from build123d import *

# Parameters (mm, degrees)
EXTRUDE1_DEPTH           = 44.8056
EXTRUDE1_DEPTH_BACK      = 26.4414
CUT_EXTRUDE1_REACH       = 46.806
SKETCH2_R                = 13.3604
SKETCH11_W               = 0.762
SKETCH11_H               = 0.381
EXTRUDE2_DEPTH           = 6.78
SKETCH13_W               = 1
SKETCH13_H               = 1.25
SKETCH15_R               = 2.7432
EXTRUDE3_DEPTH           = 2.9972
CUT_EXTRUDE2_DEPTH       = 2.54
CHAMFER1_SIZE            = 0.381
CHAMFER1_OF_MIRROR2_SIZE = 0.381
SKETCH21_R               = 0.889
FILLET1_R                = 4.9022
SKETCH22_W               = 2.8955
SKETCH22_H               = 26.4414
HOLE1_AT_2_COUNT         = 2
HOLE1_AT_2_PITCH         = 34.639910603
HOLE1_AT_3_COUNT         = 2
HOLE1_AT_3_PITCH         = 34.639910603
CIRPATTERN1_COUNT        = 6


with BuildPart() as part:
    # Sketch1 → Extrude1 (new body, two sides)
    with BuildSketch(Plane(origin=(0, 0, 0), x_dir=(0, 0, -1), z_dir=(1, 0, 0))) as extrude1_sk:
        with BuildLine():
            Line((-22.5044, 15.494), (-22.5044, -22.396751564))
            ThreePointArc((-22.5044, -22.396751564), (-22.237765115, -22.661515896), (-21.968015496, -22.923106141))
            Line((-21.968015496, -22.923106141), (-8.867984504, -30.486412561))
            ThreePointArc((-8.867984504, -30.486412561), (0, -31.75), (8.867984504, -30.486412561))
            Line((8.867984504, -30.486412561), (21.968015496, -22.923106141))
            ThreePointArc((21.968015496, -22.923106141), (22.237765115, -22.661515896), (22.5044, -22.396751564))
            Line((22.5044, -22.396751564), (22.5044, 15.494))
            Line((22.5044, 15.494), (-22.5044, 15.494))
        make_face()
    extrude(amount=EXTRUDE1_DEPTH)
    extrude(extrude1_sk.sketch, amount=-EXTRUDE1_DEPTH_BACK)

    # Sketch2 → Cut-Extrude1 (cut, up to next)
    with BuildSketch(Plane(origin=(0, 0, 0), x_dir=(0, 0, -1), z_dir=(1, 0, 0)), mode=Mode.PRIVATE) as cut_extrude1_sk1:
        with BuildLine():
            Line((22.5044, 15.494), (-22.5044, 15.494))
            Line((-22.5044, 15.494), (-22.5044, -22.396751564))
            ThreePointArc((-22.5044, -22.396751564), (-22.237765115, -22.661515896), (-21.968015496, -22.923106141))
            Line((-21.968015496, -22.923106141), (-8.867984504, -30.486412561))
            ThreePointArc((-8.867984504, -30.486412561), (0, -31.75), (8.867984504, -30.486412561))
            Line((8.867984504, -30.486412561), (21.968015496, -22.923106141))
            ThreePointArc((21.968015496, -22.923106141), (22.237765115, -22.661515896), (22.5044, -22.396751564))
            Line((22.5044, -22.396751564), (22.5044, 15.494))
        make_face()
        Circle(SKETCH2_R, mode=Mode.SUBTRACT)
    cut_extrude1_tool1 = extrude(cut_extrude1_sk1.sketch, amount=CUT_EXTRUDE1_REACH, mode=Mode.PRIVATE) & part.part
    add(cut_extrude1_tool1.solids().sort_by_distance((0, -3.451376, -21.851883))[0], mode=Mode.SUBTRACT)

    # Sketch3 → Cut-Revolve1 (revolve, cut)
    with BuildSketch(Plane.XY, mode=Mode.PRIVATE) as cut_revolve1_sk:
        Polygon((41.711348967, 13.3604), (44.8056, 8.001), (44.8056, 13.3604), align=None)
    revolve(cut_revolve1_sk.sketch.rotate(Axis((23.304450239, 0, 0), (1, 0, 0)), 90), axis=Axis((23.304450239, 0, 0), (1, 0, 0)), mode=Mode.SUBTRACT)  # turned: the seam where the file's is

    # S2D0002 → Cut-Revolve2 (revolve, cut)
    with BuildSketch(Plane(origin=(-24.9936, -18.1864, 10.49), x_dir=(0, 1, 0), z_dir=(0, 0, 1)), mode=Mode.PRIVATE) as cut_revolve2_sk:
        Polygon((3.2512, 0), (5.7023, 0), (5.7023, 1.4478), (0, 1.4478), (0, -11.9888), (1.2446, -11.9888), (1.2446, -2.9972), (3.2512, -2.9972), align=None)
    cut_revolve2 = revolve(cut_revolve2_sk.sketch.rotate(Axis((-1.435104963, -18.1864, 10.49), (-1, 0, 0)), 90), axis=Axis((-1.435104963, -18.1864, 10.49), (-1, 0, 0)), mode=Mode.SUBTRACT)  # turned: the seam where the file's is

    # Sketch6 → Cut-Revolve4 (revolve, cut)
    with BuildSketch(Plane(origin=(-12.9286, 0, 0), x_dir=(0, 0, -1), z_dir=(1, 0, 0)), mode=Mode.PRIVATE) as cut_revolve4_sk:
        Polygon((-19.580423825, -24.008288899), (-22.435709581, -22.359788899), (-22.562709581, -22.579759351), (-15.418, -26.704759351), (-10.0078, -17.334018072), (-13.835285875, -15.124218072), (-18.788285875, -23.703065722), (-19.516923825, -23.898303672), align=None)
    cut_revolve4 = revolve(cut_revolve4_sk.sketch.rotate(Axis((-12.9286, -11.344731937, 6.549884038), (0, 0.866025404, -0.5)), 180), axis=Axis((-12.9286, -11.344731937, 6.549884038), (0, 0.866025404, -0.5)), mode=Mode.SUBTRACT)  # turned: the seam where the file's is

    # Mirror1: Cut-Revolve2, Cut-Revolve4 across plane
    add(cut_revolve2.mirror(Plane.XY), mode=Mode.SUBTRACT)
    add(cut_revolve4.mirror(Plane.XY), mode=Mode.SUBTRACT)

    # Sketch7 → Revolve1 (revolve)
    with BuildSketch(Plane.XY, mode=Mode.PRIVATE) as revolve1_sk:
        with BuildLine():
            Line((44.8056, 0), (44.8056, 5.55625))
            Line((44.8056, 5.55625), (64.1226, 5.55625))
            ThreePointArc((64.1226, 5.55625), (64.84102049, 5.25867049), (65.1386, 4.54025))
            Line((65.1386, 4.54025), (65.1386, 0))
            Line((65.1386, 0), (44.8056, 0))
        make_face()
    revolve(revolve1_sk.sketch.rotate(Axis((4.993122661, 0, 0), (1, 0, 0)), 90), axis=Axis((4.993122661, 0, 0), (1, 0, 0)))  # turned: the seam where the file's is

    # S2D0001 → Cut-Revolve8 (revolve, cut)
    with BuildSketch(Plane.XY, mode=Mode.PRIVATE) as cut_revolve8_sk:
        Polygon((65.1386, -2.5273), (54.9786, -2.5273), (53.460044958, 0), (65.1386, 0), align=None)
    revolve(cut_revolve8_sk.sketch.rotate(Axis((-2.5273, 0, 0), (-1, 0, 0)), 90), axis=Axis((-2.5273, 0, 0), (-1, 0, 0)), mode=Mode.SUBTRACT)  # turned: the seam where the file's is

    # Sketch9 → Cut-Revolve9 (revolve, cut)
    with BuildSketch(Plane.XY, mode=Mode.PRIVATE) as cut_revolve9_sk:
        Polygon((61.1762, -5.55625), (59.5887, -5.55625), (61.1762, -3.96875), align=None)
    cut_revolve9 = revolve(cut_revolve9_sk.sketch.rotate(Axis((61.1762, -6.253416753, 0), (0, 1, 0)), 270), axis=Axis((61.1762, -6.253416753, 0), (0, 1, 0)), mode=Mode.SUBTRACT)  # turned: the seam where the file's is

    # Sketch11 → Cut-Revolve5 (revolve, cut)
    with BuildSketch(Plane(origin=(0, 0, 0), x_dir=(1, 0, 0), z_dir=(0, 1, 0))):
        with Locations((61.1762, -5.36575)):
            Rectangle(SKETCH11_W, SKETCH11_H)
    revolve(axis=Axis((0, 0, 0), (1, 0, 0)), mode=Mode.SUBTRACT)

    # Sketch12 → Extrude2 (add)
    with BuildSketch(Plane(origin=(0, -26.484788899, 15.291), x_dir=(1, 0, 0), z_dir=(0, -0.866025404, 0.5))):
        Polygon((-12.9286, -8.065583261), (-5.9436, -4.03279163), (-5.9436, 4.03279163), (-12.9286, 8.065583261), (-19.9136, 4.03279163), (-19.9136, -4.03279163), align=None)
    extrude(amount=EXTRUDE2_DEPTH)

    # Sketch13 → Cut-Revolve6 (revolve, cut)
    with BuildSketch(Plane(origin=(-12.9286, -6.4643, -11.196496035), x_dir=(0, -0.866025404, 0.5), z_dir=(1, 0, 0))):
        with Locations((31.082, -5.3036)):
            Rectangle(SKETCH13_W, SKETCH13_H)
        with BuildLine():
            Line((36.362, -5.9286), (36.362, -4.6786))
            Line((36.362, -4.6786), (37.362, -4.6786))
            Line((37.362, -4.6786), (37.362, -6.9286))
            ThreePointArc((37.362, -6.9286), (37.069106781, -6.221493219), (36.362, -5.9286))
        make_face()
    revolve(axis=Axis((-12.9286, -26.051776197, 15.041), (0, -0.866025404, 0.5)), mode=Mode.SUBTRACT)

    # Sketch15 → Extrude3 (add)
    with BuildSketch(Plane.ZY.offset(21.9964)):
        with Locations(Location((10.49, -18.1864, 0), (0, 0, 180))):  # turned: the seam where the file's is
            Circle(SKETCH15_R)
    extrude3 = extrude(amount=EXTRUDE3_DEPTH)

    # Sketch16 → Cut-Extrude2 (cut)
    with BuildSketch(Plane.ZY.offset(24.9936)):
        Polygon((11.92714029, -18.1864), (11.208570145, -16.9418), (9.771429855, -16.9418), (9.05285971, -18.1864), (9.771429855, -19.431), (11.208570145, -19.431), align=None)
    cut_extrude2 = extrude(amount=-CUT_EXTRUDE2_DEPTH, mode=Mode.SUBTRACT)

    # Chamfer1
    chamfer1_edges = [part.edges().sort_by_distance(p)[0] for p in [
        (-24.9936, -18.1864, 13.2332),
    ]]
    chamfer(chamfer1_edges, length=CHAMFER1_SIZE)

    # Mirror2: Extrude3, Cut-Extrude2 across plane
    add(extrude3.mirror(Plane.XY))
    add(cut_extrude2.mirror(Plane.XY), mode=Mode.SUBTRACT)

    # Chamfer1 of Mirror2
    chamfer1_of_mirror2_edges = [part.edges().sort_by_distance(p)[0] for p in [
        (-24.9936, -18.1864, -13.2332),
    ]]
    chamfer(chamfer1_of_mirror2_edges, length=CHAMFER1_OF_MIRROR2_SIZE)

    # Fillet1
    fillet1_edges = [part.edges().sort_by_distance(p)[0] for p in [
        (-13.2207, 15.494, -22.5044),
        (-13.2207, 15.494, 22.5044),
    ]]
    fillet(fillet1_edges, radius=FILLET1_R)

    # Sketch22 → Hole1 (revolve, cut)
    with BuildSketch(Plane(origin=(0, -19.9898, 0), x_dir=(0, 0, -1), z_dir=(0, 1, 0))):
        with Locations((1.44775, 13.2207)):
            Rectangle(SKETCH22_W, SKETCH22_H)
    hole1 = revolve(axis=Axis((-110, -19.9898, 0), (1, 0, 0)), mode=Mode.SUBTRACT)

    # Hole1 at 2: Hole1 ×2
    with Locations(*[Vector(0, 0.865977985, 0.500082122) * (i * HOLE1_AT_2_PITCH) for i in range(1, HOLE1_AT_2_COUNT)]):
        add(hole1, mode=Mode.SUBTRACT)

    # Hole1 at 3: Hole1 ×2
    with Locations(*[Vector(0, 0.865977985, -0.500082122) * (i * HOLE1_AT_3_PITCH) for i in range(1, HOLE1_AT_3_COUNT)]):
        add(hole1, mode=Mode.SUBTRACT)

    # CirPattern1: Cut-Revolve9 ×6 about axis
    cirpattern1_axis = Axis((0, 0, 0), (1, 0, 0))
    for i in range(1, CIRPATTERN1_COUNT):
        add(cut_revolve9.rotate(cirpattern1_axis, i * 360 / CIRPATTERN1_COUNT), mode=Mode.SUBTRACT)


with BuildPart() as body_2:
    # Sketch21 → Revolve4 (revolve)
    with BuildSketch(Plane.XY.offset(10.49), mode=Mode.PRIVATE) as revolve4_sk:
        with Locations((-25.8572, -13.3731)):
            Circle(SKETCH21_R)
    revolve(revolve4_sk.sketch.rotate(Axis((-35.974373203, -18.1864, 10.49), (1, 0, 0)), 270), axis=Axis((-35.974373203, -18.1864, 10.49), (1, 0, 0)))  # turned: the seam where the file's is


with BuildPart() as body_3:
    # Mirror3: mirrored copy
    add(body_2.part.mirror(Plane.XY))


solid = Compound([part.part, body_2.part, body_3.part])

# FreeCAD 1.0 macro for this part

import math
import FreeCAD as App
import Part
import Sketcher

V = App.Vector
Q = App.Units.Quantity


def edges_at(feature, points):
    """Names of the edges that pass closest to the given points."""
    edges = feature.Shape.Edges
    near = lambda p: min(range(len(edges)), key=lambda i: edges[i].distToShape(Part.Vertex(*p))[0])
    return sorted({f"Edge{near(p) + 1}" for p in points})


def add_polygon(sketch, points):
    """Adds a closed chain of lines whose ends are joined by coincident constraints."""
    first, n = sketch.GeometryCount, len(points)
    for a, b in zip(points, points[1:] + points[:1]):
        sketch.addGeometry(Part.LineSegment(App.Vector(*a, 0), App.Vector(*b, 0)), False)
    for i in range(n):
        sketch.addConstraint(Sketcher.Constraint("Coincident", first + i, 2, first + (i + 1) % n, 1))

doc = App.newDocument("Part")
params = doc.addObject("Spreadsheet::Sheet", "Params")
for row, (alias, value) in enumerate([
    ("sketch1_radius", "1.25 in"),
    ("sketch1_height", "1.772 in"),
    ("pad1_length", "1.764 in"),
    ("pad1_length2", "1.041 in"),
    ("sketch2_radius", "1.25 in"),
    ("sketch2_diameter", "1.052 in"),
    ("sketch2_height", "1.772 in"),
    ("sketch3_height", "0.211 in"),
    ("groove_angle", "360 deg"),
    ("sketch4_width", "0.057 in"),
    ("sketch4_width2", "0.529 in"),
    ("sketch4_width3", "0.354 in"),
    ("sketch4_height", "0.049 in"),
    ("sketch4_height2", "0.079 in"),
    ("groove2_angle", "360 deg"),
    ("sketch5_length", "0.01 in"),
    ("sketch5_length2", "0.39 in"),
    ("sketch5_length3", "0.426 in"),
    ("sketch5_length4", "0.174 in"),
    ("sketch5_length5", "0.005 in"),
    ("groove3_angle", "360 deg"),
    ("sketch6_radius", "0.04 in"),
    ("sketch6_height", "0.21875 in"),
    ("revolution_angle", "360 deg"),
    ("sketch7_width", "0.4 in"),
    ("groove4_angle", "360 deg"),
    ("sketch8_width", "0.0625 in"),
    ("groove5_angle", "360 deg"),
    ("sketch9_width", "0.03 in"),
    ("sketch9_height", "0.015 in"),
    ("groove6_angle", "360 deg"),
    ("pad2_length", "6.78 mm"),
    ("groove7_angle", "360 deg"),
    ("sketch12_diameter", "0.216 in"),
    ("pad3_length", "0.118 in"),
    ("pocket2_length", "0.1 in"),
    ("chamfer_size", "0.015 in"),
    ("chamfer2_size", "0.015 in"),
    ("fillet_radius", "0.193 in"),
    ("sketch14_width", "1.041 in"),
    ("groove8_angle", "360 deg"),
    ("linearpattern_pitch", "34.639911 mm"),
    ("linearpattern2_pitch", "34.639911 mm"),
    ("sketch15_diameter", "0.07 in"),
    ("revolution2_angle", "360 deg"),
], start=1):
    params.set(f"A{row}", alias)
    params.set(f"B{row}", "=" + value)
    params.setAlias(f"B{row}", alias)

body = doc.addObject("PartDesign::Body", "Body")

sketch1 = body.newObject("Sketcher::SketchObject", "Sketch")
sketch1.AttachmentSupport = (doc.getObject("YZ_Plane"), [""])
sketch1.MapMode = "FlatFace"
sketch1.addGeometry(Part.LineSegment(V(15.494, 22.5044, 0), V(-22.396752, 22.5044, 0)), False)
sketch1.addGeometry(Part.ArcOfCircle(Part.Circle(V(-0.000005, 0.000005, 0), V(0, 0, 1), 31.749993), math.radians(134.862636), math.radians(136.218825)), False)
sketch1.addGeometry(Part.LineSegment(V(-22.923106, 21.968015, 0), V(-30.486413, 8.867985, 0)), False)
sketch1.addGeometry(Part.ArcOfCircle(Part.Circle(V(0, 0, 0), V(0, 0, 1), 31.75), math.radians(163.781175), math.radians(196.218825)), False)
sketch1.addGeometry(Part.LineSegment(V(-30.486413, -8.867985, 0), V(-22.923106, -21.968015, 0)), False)
sketch1.addGeometry(Part.ArcOfCircle(Part.Circle(V(-0.000005, -0.000005, 0), V(0, 0, 1), 31.749993), math.radians(-136.218825), math.radians(-134.862636)), False)
sketch1.addGeometry(Part.LineSegment(V(-22.396752, -22.5044, 0), V(15.494, -22.5044, 0)), False)
sketch1.addGeometry(Part.LineSegment(V(15.494, -22.5044, 0), V(15.494, 22.5044, 0)), False)
sketch1.addConstraint(Sketcher.Constraint("Coincident", 0, 2, 1, 1))
sketch1.addConstraint(Sketcher.Constraint("Coincident", 1, 2, 2, 1))
sketch1.addConstraint(Sketcher.Constraint("Coincident", 2, 2, 3, 1))
sketch1.addConstraint(Sketcher.Constraint("Coincident", 3, 2, 4, 1))
sketch1.addConstraint(Sketcher.Constraint("Coincident", 4, 2, 5, 1))
sketch1.addConstraint(Sketcher.Constraint("Coincident", 5, 2, 6, 1))
sketch1.addConstraint(Sketcher.Constraint("Coincident", 6, 2, 7, 1))
sketch1.addConstraint(Sketcher.Constraint("Coincident", 7, 2, 0, 1))
sketch1.addConstraint(Sketcher.Constraint("Horizontal", 0))
sketch1.addConstraint(Sketcher.Constraint("Horizontal", 6))
sketch1.addConstraint(Sketcher.Constraint("Vertical", 7))
sketch1.addConstraint(Sketcher.Constraint("Coincident", 1, 3, -1, 1))
sketch1.addConstraint(Sketcher.Constraint("Coincident", 3, 3, -1, 1))
sketch1.addConstraint(Sketcher.Constraint("Coincident", 5, 3, -1, 1))
sketch1.addConstraint(Sketcher.Constraint("Radius", 3, Q("1.25 in")))
sketch1.addConstraint(Sketcher.Constraint("DistanceY", 7, 1, 7, 2, Q("1.772 in")))
sketch1.addConstraint(Sketcher.Constraint("DistanceX", -1, 1, 6, 2, Q("0.61 in")))
sketch1.addConstraint(Sketcher.Constraint("DistanceY", -1, 1, 0, 2, Q("0.886 in")))
sketch1.addConstraint(Sketcher.Constraint("Radius", 1, 31.749993))
sketch1.addConstraint(Sketcher.Constraint("Radius", 5, 31.749993))
sketch1.addConstraint(Sketcher.Constraint("DistanceX", 1, 2, 1, 3, 22.923101))
sketch1.addConstraint(Sketcher.Constraint("DistanceY", 3, 2, 1, 2, 30.836))
sketch1.addConstraint(Sketcher.Constraint("DistanceX", 4, 2, 5, 3, 22.923101))
sketch1.addConstraint(Sketcher.Constraint("DistanceY", 4, 2, 2, 2, 30.836))
sketch1.setExpression("Constraints[14]", "Params.sketch1_radius")
sketch1.setExpression("Constraints[15]", "Params.sketch1_height")
pad1 = body.newObject("PartDesign::Pad", "Pad")
pad1.Profile = sketch1
pad1.Type = "TwoLengths"
pad1.setExpression("Length", "Params.pad1_length")
pad1.setExpression("Length2", "Params.pad1_length2")

sketch2 = body.newObject("Sketcher::SketchObject", "Sketch001")
sketch2.AttachmentSupport = (doc.getObject("YZ_Plane"), [""])
sketch2.MapMode = "FlatFace"
sketch2.addGeometry(Part.LineSegment(V(15.494, -22.5044, 0), V(15.494, 22.5044, 0)), False)
sketch2.addGeometry(Part.LineSegment(V(15.494, 22.5044, 0), V(-22.396752, 22.5044, 0)), False)
sketch2.addGeometry(Part.ArcOfCircle(Part.Circle(V(-0.000005, 0.000005, 0), V(0, 0, 1), 31.749993), math.radians(134.862636), math.radians(136.218825)), False)
sketch2.addGeometry(Part.LineSegment(V(-22.923106, 21.968015, 0), V(-30.486413, 8.867985, 0)), False)
sketch2.addGeometry(Part.ArcOfCircle(Part.Circle(V(0, 0, 0), V(0, 0, 1), 31.75), math.radians(163.781175), math.radians(196.218825)), False)
sketch2.addGeometry(Part.LineSegment(V(-30.486413, -8.867985, 0), V(-22.923106, -21.968015, 0)), False)
sketch2.addGeometry(Part.ArcOfCircle(Part.Circle(V(-0.000005, -0.000005, 0), V(0, 0, 1), 31.749993), math.radians(-136.218825), math.radians(-134.862636)), False)
sketch2.addGeometry(Part.LineSegment(V(-22.396752, -22.5044, 0), V(15.494, -22.5044, 0)), False)
sketch2.addGeometry(Part.Circle(V(0, 0, 0), V(0, 0, 1), 13.3604), False)
sketch2.addConstraint(Sketcher.Constraint("Coincident", 0, 2, 1, 1))
sketch2.addConstraint(Sketcher.Constraint("Coincident", 1, 2, 2, 1))
sketch2.addConstraint(Sketcher.Constraint("Coincident", 2, 2, 3, 1))
sketch2.addConstraint(Sketcher.Constraint("Coincident", 3, 2, 4, 1))
sketch2.addConstraint(Sketcher.Constraint("Coincident", 4, 2, 5, 1))
sketch2.addConstraint(Sketcher.Constraint("Coincident", 5, 2, 6, 1))
sketch2.addConstraint(Sketcher.Constraint("Coincident", 6, 2, 7, 1))
sketch2.addConstraint(Sketcher.Constraint("Coincident", 7, 2, 0, 1))
sketch2.addConstraint(Sketcher.Constraint("Vertical", 0))
sketch2.addConstraint(Sketcher.Constraint("Horizontal", 1))
sketch2.addConstraint(Sketcher.Constraint("Horizontal", 7))
sketch2.addConstraint(Sketcher.Constraint("Coincident", 2, 3, -1, 1))
sketch2.addConstraint(Sketcher.Constraint("Coincident", 4, 3, -1, 1))
sketch2.addConstraint(Sketcher.Constraint("Coincident", 6, 3, -1, 1))
sketch2.addConstraint(Sketcher.Constraint("Coincident", 8, 3, -1, 1))
sketch2.addConstraint(Sketcher.Constraint("Radius", 4, Q("1.25 in")))
sketch2.addConstraint(Sketcher.Constraint("Diameter", 8, Q("1.052 in")))
sketch2.addConstraint(Sketcher.Constraint("DistanceY", 0, 1, 0, 2, Q("1.772 in")))
sketch2.addConstraint(Sketcher.Constraint("DistanceX", -1, 1, 0, 2, Q("0.61 in")))
sketch2.addConstraint(Sketcher.Constraint("DistanceY", -1, 1, 0, 2, Q("0.886 in")))
sketch2.addConstraint(Sketcher.Constraint("Radius", 2, 31.749993))
sketch2.addConstraint(Sketcher.Constraint("Radius", 6, 31.749993))
sketch2.addConstraint(Sketcher.Constraint("DistanceX", 2, 2, 2, 3, 22.923101))
sketch2.addConstraint(Sketcher.Constraint("DistanceY", 4, 2, 2, 2, 30.836))
sketch2.addConstraint(Sketcher.Constraint("DistanceX", 5, 2, 6, 3, 22.923101))
sketch2.addConstraint(Sketcher.Constraint("DistanceY", 5, 2, 3, 2, 30.836))
sketch2.setExpression("Constraints[15]", "Params.sketch2_radius")
sketch2.setExpression("Constraints[16]", "Params.sketch2_diameter")
sketch2.setExpression("Constraints[17]", "Params.sketch2_height")
pocket1 = body.newObject("PartDesign::Pocket", "Pocket")
pocket1.Profile = sketch2
pocket1.Type = "UpToFirst"
pocket1.Reversed = True

sketch3 = body.newObject("Sketcher::SketchObject", "Sketch002")
sketch3.AttachmentSupport = (doc.getObject("XY_Plane"), [""])
sketch3.MapMode = "FlatFace"
add_polygon(sketch3, [(41.7, 13.4), (44.8, 8), (44.8, 13.4)])
sketch3.addConstraint(Sketcher.Constraint("Vertical", 1))
sketch3.addConstraint(Sketcher.Constraint("Horizontal", 2))
sketch3.addConstraint(Sketcher.Constraint("Angle", 0, Q("-60 deg")))
sketch3.addConstraint(Sketcher.Constraint("DistanceY", 1, 1, 1, 2, Q("0.211 in")))
sketch3.addConstraint(Sketcher.Constraint("DistanceX", -1, 1, 0, 2, Q("1.764 in")))
sketch3.addConstraint(Sketcher.Constraint("DistanceY", -1, 1, 0, 2, Q("0.315 in")))
sketch3.setExpression("Constraints[6]", "Params.sketch3_height")
groove = body.newObject("PartDesign::Groove", "Groove")
groove.Profile = sketch3
groove.ReferenceAxis = (sketch3, ["H_Axis"])
groove.setExpression("Angle", "Params.groove_angle")

sketch4 = body.newObject("Sketcher::SketchObject", "Sketch003")
sketch4.AttachmentSupport = (doc.getObject("XY_Plane"), [""])
sketch4.MapMode = "FlatFace"
sketch4.AttachmentOffset = App.Placement(V(0, 0, 10.49), App.Rotation())
add_polygon(sketch4, [(-25, -14.9), (-25, -12.5), (-26.4, -12.5), (-26.4, -18.2), (-13, -18.2), (-13, -16.9), (-22, -16.9), (-22, -14.9)])
sketch4.addGeometry(Part.LineSegment(V(-13, -18.2, 0), V(-26.4, -18.2, 0)), True)
sketch4.addConstraint(Sketcher.Constraint("Vertical", 0))
sketch4.addConstraint(Sketcher.Constraint("Horizontal", 1))
sketch4.addConstraint(Sketcher.Constraint("Vertical", 2))
sketch4.addConstraint(Sketcher.Constraint("Horizontal", 3))
sketch4.addConstraint(Sketcher.Constraint("Vertical", 4))
sketch4.addConstraint(Sketcher.Constraint("Horizontal", 5))
sketch4.addConstraint(Sketcher.Constraint("Vertical", 6))
sketch4.addConstraint(Sketcher.Constraint("Horizontal", 7))
sketch4.addConstraint(Sketcher.Constraint("Horizontal", 8))
sketch4.addConstraint(Sketcher.Constraint("Coincident", 8, 1, 3, 2))
sketch4.addConstraint(Sketcher.Constraint("Vertical", 1, 2, 8, 2))
sketch4.addConstraint(Sketcher.Constraint("DistanceX", 1, 2, 1, 1, Q("0.057 in")))
sketch4.addConstraint(Sketcher.Constraint("DistanceX", 3, 1, 3, 2, Q("0.529 in")))
sketch4.addConstraint(Sketcher.Constraint("DistanceX", 5, 2, 5, 1, Q("0.354 in")))
sketch4.addConstraint(Sketcher.Constraint("DistanceY", 4, 1, 4, 2, Q("0.049 in")))
sketch4.addConstraint(Sketcher.Constraint("DistanceY", 6, 1, 6, 2, Q("0.079 in")))
sketch4.addConstraint(Sketcher.Constraint("DistanceY", 0, 1, 0, 2, Q("0.0965 in")))
sketch4.addConstraint(Sketcher.Constraint("DistanceX", 0, 2, -1, 1, Q("0.984 in")))
sketch4.addConstraint(Sketcher.Constraint("DistanceY", 2, 2, -1, 1, Q("0.716 in")))
sketch4.setExpression("Constraints[19]", "Params.sketch4_width")
sketch4.setExpression("Constraints[20]", "Params.sketch4_width2")
sketch4.setExpression("Constraints[21]", "Params.sketch4_width3")
sketch4.setExpression("Constraints[22]", "Params.sketch4_height")
sketch4.setExpression("Constraints[23]", "Params.sketch4_height2")
groove2 = body.newObject("PartDesign::Groove", "Groove001")
groove2.Profile = sketch4
groove2.ReferenceAxis = (sketch4, ["Axis0"])
groove2.setExpression("Angle", "Params.groove2_angle")

sketch5 = body.newObject("Sketcher::SketchObject", "Sketch004")
sketch5.AttachmentSupport = (doc.getObject("YZ_Plane"), [""])
sketch5.MapMode = "FlatFace"
sketch5.AttachmentOffset = App.Placement(V(0, 0, -0.509 * 25.4), App.Rotation())
add_polygon(sketch5, [(-24.01, 19.58), (-22.36, 22.44), (-22.58, 22.56), (-26.7, 15.42), (-17.33, 10.01), (-15.12, 13.84), (-23.7, 18.79), (-23.9, 19.52)])
sketch5.addGeometry(Part.LineSegment(V(-26.7, 15.42, 0), V(-17.33, 10.01, 0)), True)
sketch5.addConstraint(Sketcher.Constraint("Coincident", 8, 1, 2, 2))
sketch5.addConstraint(Sketcher.Constraint("Coincident", 8, 2, 3, 2))
sketch5.addConstraint(Sketcher.Constraint("Perpendicular", 0, 1))
sketch5.addConstraint(Sketcher.Constraint("Perpendicular", 1, 2))
sketch5.addConstraint(Sketcher.Constraint("Perpendicular", 2, 3))
sketch5.addConstraint(Sketcher.Constraint("Perpendicular", 3, 4))
sketch5.addConstraint(Sketcher.Constraint("Perpendicular", 4, 5))
sketch5.addConstraint(Sketcher.Constraint("Parallel", 5, 7))
sketch5.addConstraint(Sketcher.Constraint("Angle", 0, Q("60 deg")))
sketch5.addConstraint(Sketcher.Constraint("Angle", 6, Q("105 deg")))
sketch5.addConstraint(Sketcher.Constraint("Distance", 1, Q("0.01 in")))
sketch5.addConstraint(Sketcher.Constraint("Distance", 5, Q("0.39 in")))
sketch5.addConstraint(Sketcher.Constraint("Distance", 3, Q("0.426 in")))
sketch5.addConstraint(Sketcher.Constraint("Distance", 4, Q("0.174 in")))
sketch5.addConstraint(Sketcher.Constraint("Distance", 7, Q("0.005 in")))
sketch5.addConstraint(Sketcher.Constraint("Distance", 0, 3.297))
sketch5.addConstraint(Sketcher.Constraint("DistanceY", -1, 1, 2, 2, 15.418))
sketch5.addConstraint(Sketcher.Constraint("DistanceX", 0, 2, -1, 1, 22.359789))
sketch5.setExpression("Constraints[18]", "Params.sketch5_length")
sketch5.setExpression("Constraints[19]", "Params.sketch5_length2")
sketch5.setExpression("Constraints[20]", "Params.sketch5_length3")
sketch5.setExpression("Constraints[21]", "Params.sketch5_length4")
sketch5.setExpression("Constraints[22]", "Params.sketch5_length5")
groove3 = body.newObject("PartDesign::Groove", "Groove002")
groove3.Profile = sketch5
groove3.ReferenceAxis = (sketch5, ["Axis0"])
groove3.setExpression("Angle", "Params.groove3_angle")
doc.recompute()

mirrored = body.newObject("PartDesign::Mirrored", "Mirrored")
mirrored.Originals = [groove2, groove3]
mirrored.MirrorPlane = (doc.getObject("XY_Plane"), [""])
body.Tip = mirrored

sketch6 = body.newObject("Sketcher::SketchObject", "Sketch005")
sketch6.AttachmentSupport = (doc.getObject("XY_Plane"), [""])
sketch6.MapMode = "FlatFace"
sketch6.addGeometry(Part.LineSegment(V(44.8, 5.6, 0), V(44.8, 0, 0)), False)
sketch6.addGeometry(Part.LineSegment(V(44.8, 0, 0), V(65.1, 0, 0)), False)
sketch6.addGeometry(Part.LineSegment(V(65.1, 0, 0), V(65.1, 4.5, 0)), False)
sketch6.addGeometry(Part.ArcOfCircle(Part.Circle(V(64.1, 4.5, 0), V(0, 0, 1), 1), math.radians(0), math.radians(90)), False)
sketch6.addGeometry(Part.LineSegment(V(64.1, 5.6, 0), V(44.8, 5.6, 0)), False)
sketch6.addConstraint(Sketcher.Constraint("Coincident", 0, 2, 1, 1))
sketch6.addConstraint(Sketcher.Constraint("Coincident", 1, 2, 2, 1))
sketch6.addConstraint(Sketcher.Constraint("Tangent", 2, 2, 3, 1))
sketch6.addConstraint(Sketcher.Constraint("Tangent", 3, 2, 4, 1))
sketch6.addConstraint(Sketcher.Constraint("Coincident", 4, 2, 0, 1))
sketch6.addConstraint(Sketcher.Constraint("Vertical", 0))
sketch6.addConstraint(Sketcher.Constraint("Horizontal", 1))
sketch6.addConstraint(Sketcher.Constraint("Vertical", 2))
sketch6.addConstraint(Sketcher.Constraint("Horizontal", 4))
sketch6.addConstraint(Sketcher.Constraint("PointOnObject", 0, 2, -1))
sketch6.addConstraint(Sketcher.Constraint("Radius", 3, Q("0.04 in")))
sketch6.addConstraint(Sketcher.Constraint("DistanceY", 0, 2, 0, 1, Q("0.21875 in")))
sketch6.addConstraint(Sketcher.Constraint("DistanceX", -1, 1, 0, 2, Q("1.764 in")))
sketch6.addConstraint(Sketcher.Constraint("DistanceX", 1, 1, 1, 2, 20.333))
sketch6.setExpression("Constraints[10]", "Params.sketch6_radius")
sketch6.setExpression("Constraints[11]", "Params.sketch6_height")
revolution = body.newObject("PartDesign::Revolution", "Revolution")
revolution.Profile = sketch6
revolution.ReferenceAxis = (sketch6, ["H_Axis"])
revolution.setExpression("Angle", "Params.revolution_angle")

sketch7 = body.newObject("Sketcher::SketchObject", "Sketch006")
sketch7.AttachmentSupport = (doc.getObject("XY_Plane"), [""])
sketch7.MapMode = "FlatFace"
add_polygon(sketch7, [(55, -2.5), (65.1, -2.5), (65.1, 0), (53.5, 0)])
sketch7.addConstraint(Sketcher.Constraint("Horizontal", 0))
sketch7.addConstraint(Sketcher.Constraint("Vertical", 1))
sketch7.addConstraint(Sketcher.Constraint("Horizontal", 2))
sketch7.addConstraint(Sketcher.Constraint("PointOnObject", 1, 2, -1))
sketch7.addConstraint(Sketcher.Constraint("DistanceX", 0, 1, 0, 2, Q("0.4 in")))
sketch7.addConstraint(Sketcher.Constraint("Angle", 3, Q("-59 deg")))
sketch7.addConstraint(Sketcher.Constraint("DistanceY", 1, 1, 1, 2, Q("0.0995 in")))
sketch7.addConstraint(Sketcher.Constraint("DistanceX", -1, 1, 0, 2, 65.1386))
sketch7.setExpression("Constraints[8]", "Params.sketch7_width")
groove4 = body.newObject("PartDesign::Groove", "Groove003")
groove4.Profile = sketch7
groove4.ReferenceAxis = (sketch7, ["H_Axis"])
groove4.setExpression("Angle", "Params.groove4_angle")

sketch8 = body.newObject("Sketcher::SketchObject", "Sketch007")
sketch8.AttachmentSupport = (doc.getObject("XY_Plane"), [""])
sketch8.MapMode = "FlatFace"
add_polygon(sketch8, [(59.6, -5.6), (61.2, -5.6), (61.2, -4)])
sketch8.addGeometry(Part.LineSegment(V(61.2, -5.6, 0), V(61.2, -4, 0)), True)
sketch8.addConstraint(Sketcher.Constraint("Horizontal", 0))
sketch8.addConstraint(Sketcher.Constraint("Vertical", 1))
sketch8.addConstraint(Sketcher.Constraint("Vertical", 3))
sketch8.addConstraint(Sketcher.Constraint("Coincident", 3, 1, 0, 2))
sketch8.addConstraint(Sketcher.Constraint("Equal", 0, 1))
sketch8.addConstraint(Sketcher.Constraint("Equal", 1, 3))
sketch8.addConstraint(Sketcher.Constraint("DistanceX", 0, 1, 0, 2, Q("0.0625 in")))
sketch8.addConstraint(Sketcher.Constraint("DistanceY", 0, 2, -1, 1, Q("0.21875 in")))
sketch8.addConstraint(Sketcher.Constraint("DistanceX", -1, 1, 0, 2, 61.1762))
sketch8.setExpression("Constraints[9]", "Params.sketch8_width")
groove5 = body.newObject("PartDesign::Groove", "Groove004")
groove5.Profile = sketch8
groove5.ReferenceAxis = (sketch8, ["Axis0"])
groove5.setExpression("Angle", "Params.groove5_angle")

sketch9 = body.newObject("Sketcher::SketchObject", "Sketch008")
sketch9.AttachmentSupport = (doc.getObject("XZ_Plane"), [""])
sketch9.MapMode = "FlatFace"
add_polygon(sketch9, [(60.8, 5.18), (60.8, 5.56), (61.56, 5.56), (61.56, 5.18)])
sketch9.addConstraint(Sketcher.Constraint("Vertical", 0))
sketch9.addConstraint(Sketcher.Constraint("Horizontal", 1))
sketch9.addConstraint(Sketcher.Constraint("Vertical", 2))
sketch9.addConstraint(Sketcher.Constraint("Horizontal", 3))
sketch9.addConstraint(Sketcher.Constraint("DistanceX", 1, 1, 1, 2, Q("0.03 in")))
sketch9.addConstraint(Sketcher.Constraint("DistanceY", 0, 1, 0, 2, Q("0.015 in")))
sketch9.addConstraint(Sketcher.Constraint("DistanceY", -1, 1, 0, 2, Q("0.21875 in")))
sketch9.addConstraint(Sketcher.Constraint("DistanceX", -1, 1, 0, 2, 60.7952))
sketch9.setExpression("Constraints[8]", "Params.sketch9_width")
sketch9.setExpression("Constraints[9]", "Params.sketch9_height")
groove6 = body.newObject("PartDesign::Groove", "Groove005")
groove6.Profile = sketch9
groove6.ReferenceAxis = (sketch9, ["H_Axis"])
groove6.setExpression("Angle", "Params.groove6_angle")

sketch10 = body.newObject("Sketcher::SketchObject", "Sketch009")
sketch10.Placement = App.Placement(V(0, -26.484789, 15.291), App.Rotation(V(1, 0, 0), V(0, 0.5, 0.866025404), V(0, -0.866025404, 0.5), "ZXY"))
add_polygon(sketch10, [(-13, -8), (-6, -4), (-6, 4), (-13, 8), (-20, 4), (-20, -4)])
sketch10.addConstraint(Sketcher.Constraint("Vertical", 1))
sketch10.addConstraint(Sketcher.Constraint("Vertical", 4))
sketch10.addConstraint(Sketcher.Constraint("Symmetric", 2, 2, 5, 2, -1))
sketch10.addConstraint(Sketcher.Constraint("Parallel", 0, 3))
sketch10.addConstraint(Sketcher.Constraint("Parallel", 2, 5))
sketch10.addConstraint(Sketcher.Constraint("Horizontal", 1, 2, 3, 2))
sketch10.addConstraint(Sketcher.Constraint("Horizontal", 0, 2, 4, 2))
sketch10.addConstraint(Sketcher.Constraint("Angle", 0, Q("30 deg")))
sketch10.addConstraint(Sketcher.Constraint("DistanceX", 3, 2, 1, 2, Q("0.55 in")))
sketch10.addConstraint(Sketcher.Constraint("DistanceX", 0, 2, -1, 1, Q("0.234 in")))
sketch10.addConstraint(Sketcher.Constraint("DistanceY", 1, 1, 1, 2, 8.065583))
pad2 = body.newObject("PartDesign::Pad", "Pad001")
pad2.Profile = sketch10
pad2.setExpression("Length", "Params.pad2_length")

sketch11 = body.newObject("Sketcher::SketchObject", "Sketch010")
sketch11.AttachmentSupport = (doc.getObject("YZ_Plane"), [""])
sketch11.MapMode = "FlatFace"
sketch11.AttachmentOffset = App.Placement(V(0, 0, -0.509 * 25.4), App.Rotation())
add_polygon(sketch11, [(-30.6, 8.1), (-30, 9.2), (-30.9, 9.7), (-31.5, 8.6)])
sketch11.addGeometry(Part.LineSegment(V(-35.6, 11, 0), V(-35, 12.1, 0)), False)
sketch11.addGeometry(Part.ArcOfCircle(Part.Circle(V(-34.5, 13, 0), V(0, 0, 1), 1), math.radians(150), math.radians(240)), False)
sketch11.addGeometry(Part.LineSegment(V(-35.4, 13.5, 0), V(-36.5, 11.5, 0)), False)
sketch11.addGeometry(Part.LineSegment(V(-36.5, 11.5, 0), V(-35.6, 11, 0)), False)
sketch11.addGeometry(Part.LineSegment(V(-26.5, 15.3, 0), V(-32.4, 18.7, 0)), True)
sketch11.addConstraint(Sketcher.Constraint("Coincident", 4, 2, 5, 2))
sketch11.addConstraint(Sketcher.Constraint("Tangent", 5, 1, 6, 1))
sketch11.addConstraint(Sketcher.Constraint("Coincident", 6, 2, 7, 1))
sketch11.addConstraint(Sketcher.Constraint("Coincident", 7, 2, 4, 1))
sketch11.addConstraint(Sketcher.Constraint("Perpendicular", 0, 1))
sketch11.addConstraint(Sketcher.Constraint("Perpendicular", 1, 2))
sketch11.addConstraint(Sketcher.Constraint("Perpendicular", 2, 3))
sketch11.addConstraint(Sketcher.Constraint("Perpendicular", 3, 4))
sketch11.addConstraint(Sketcher.Constraint("Parallel", 4, 6))
sketch11.addConstraint(Sketcher.Constraint("Perpendicular", 6, 7))
sketch11.addConstraint(Sketcher.Constraint("Parallel", 7, 8))
sketch11.addConstraint(Sketcher.Constraint("Equal", 2, 4))
sketch11.addConstraint(Sketcher.Constraint("Equal", 3, 7))
sketch11.addConstraint(Sketcher.Constraint("Angle", 0, Q("60 deg")))
sketch11.addConstraint(Sketcher.Constraint("Radius", 5, 1.0))
sketch11.addConstraint(Sketcher.Constraint("DistanceY", 7, 2, 5, 1, Q("0.0963999 in")))
sketch11.addConstraint(Sketcher.Constraint("Distance", 0, 1.25))
sketch11.addConstraint(Sketcher.Constraint("Distance", 8, 6.78))
sketch11.addConstraint(Sketcher.Constraint("DistanceY", -1, 1, 8, 1, 15.291))
sketch11.addConstraint(Sketcher.Constraint("DistanceX", 5, 3, 1, 2, 3.639601))
sketch11.addConstraint(Sketcher.Constraint("DistanceY", 1, 2, 4, 2, 2.39))
sketch11.addConstraint(Sketcher.Constraint("DistanceX", 0, 2, 8, 1, 3.5))
sketch11.addConstraint(Sketcher.Constraint("DistanceX", 0, 2, -1, 1, 29.984789))
sketch11.addConstraint(Sketcher.Constraint("DistanceY", -1, 1, 2, 2, 8.64629))
groove7 = body.newObject("PartDesign::Groove", "Groove006")
groove7.Profile = sketch11
groove7.ReferenceAxis = (sketch11, ["Axis0"])
groove7.setExpression("Angle", "Params.groove7_angle")

sketch12 = body.newObject("Sketcher::SketchObject", "Sketch011")
sketch12.AttachmentSupport = (doc.getObject("YZ_Plane"), [""])
sketch12.MapMode = "FlatFace"
sketch12.AttachmentOffset = App.Placement(V(0, 0, -0.866 * 25.4), App.Rotation())
sketch12.addGeometry(Part.Circle(V(-18.2, 10.5, 0), V(0, 0, 1), 2.7), False)
sketch12.addConstraint(Sketcher.Constraint("Diameter", 0, Q("0.216 in")))
sketch12.addConstraint(Sketcher.Constraint("DistanceX", 0, 3, -1, 1, Q("0.716 in")))
sketch12.addConstraint(Sketcher.Constraint("DistanceY", -1, 1, 0, 3, 10.49))
sketch12.setExpression("Constraints[0]", "Params.sketch12_diameter")
pad3 = body.newObject("PartDesign::Pad", "Pad002")
pad3.Profile = sketch12
pad3.setExpression("Length", "Params.pad3_length")
pad3.Reversed = True

sketch13 = body.newObject("Sketcher::SketchObject", "Sketch012")
sketch13.AttachmentSupport = (doc.getObject("YZ_Plane"), [""])
sketch13.MapMode = "FlatFace"
sketch13.AttachmentOffset = App.Placement(V(0, 0, -0.984 * 25.4), App.Rotation())
add_polygon(sketch13, [(-18.2, 11.9), (-16.9, 11.2), (-16.9, 9.8), (-18.2, 9.1), (-19.4, 9.8), (-19.4, 11.2)])
sketch13.addConstraint(Sketcher.Constraint("Vertical", 1))
sketch13.addConstraint(Sketcher.Constraint("Vertical", 4))
sketch13.addConstraint(Sketcher.Constraint("Parallel", 0, 3))
sketch13.addConstraint(Sketcher.Constraint("Parallel", 2, 5))
sketch13.addConstraint(Sketcher.Constraint("Horizontal", 1, 2, 3, 2))
sketch13.addConstraint(Sketcher.Constraint("Horizontal", 0, 2, 4, 2))
sketch13.addConstraint(Sketcher.Constraint("Vertical", 2, 2, 5, 2))
sketch13.addConstraint(Sketcher.Constraint("Angle", 0, Q("-30 deg")))
sketch13.addConstraint(Sketcher.Constraint("DistanceX", 0, 2, -1, 1, Q("0.667 in")))
sketch13.addConstraint(Sketcher.Constraint("DistanceX", 2, 2, -1, 1, Q("0.716 in")))
sketch13.addConstraint(Sketcher.Constraint("DistanceY", 1, 2, 1, 1, 1.43714))
sketch13.addConstraint(Sketcher.Constraint("DistanceY", -1, 1, 0, 2, 11.20857))
pocket2 = body.newObject("PartDesign::Pocket", "Pocket001")
pocket2.Profile = sketch13
pocket2.setExpression("Length", "Params.pocket2_length")
pocket2.Reversed = True
doc.recompute()

chamfer = body.newObject("PartDesign::Chamfer", "Chamfer")
chamfer.Base = (pocket2, edges_at(pocket2, [(-24.994, -18.186, 13.233)]))
chamfer.setExpression("Size", "Params.chamfer_size")
doc.recompute()

mirrored2 = body.newObject("PartDesign::Mirrored", "Mirrored001")
mirrored2.Originals = [pad3, pocket2]
mirrored2.MirrorPlane = (doc.getObject("XY_Plane"), [""])
body.Tip = mirrored2
doc.recompute()

chamfer2 = body.newObject("PartDesign::Chamfer", "Chamfer001")
chamfer2.Base = (mirrored2, edges_at(mirrored2, [(-24.994, -18.186, -13.233)]))
chamfer2.setExpression("Size", "Params.chamfer2_size")
doc.recompute()

fillet = body.newObject("PartDesign::Fillet", "Fillet")
fillet.Base = (chamfer2, edges_at(chamfer2, [(-13.221, 15.494, -22.504), (-13.221, 15.494, 22.504)]))
fillet.setExpression("Radius", "Params.fillet_radius")

sketch14 = body.newObject("Sketcher::SketchObject", "Sketch013")
sketch14.AttachmentSupport = (doc.getObject("XZ_Plane"), [""])
sketch14.MapMode = "FlatFace"
sketch14.AttachmentOffset = App.Placement(V(0, 0, 0.787 * 25.4), App.Rotation())
add_polygon(sketch14, [(-26.4, 0), (0, 0), (0, -2.9), (-26.4, -2.9)])
sketch14.addConstraint(Sketcher.Constraint("Horizontal", 0))
sketch14.addConstraint(Sketcher.Constraint("Vertical", 1))
sketch14.addConstraint(Sketcher.Constraint("Horizontal", 2))
sketch14.addConstraint(Sketcher.Constraint("Vertical", 3))
sketch14.addConstraint(Sketcher.Constraint("Coincident", 0, 2, -1, 1))
sketch14.addConstraint(Sketcher.Constraint("DistanceX", 0, 1, 0, 2, Q("1.041 in")))
sketch14.addConstraint(Sketcher.Constraint("DistanceY", 1, 2, 1, 1, 2.8955))
sketch14.setExpression("Constraints[9]", "Params.sketch14_width")
groove8 = body.newObject("PartDesign::Groove", "Groove007")
groove8.Profile = sketch14
groove8.ReferenceAxis = (sketch14, ["H_Axis"])
groove8.setExpression("Angle", "Params.groove8_angle")
doc.recompute()

datumline = body.newObject("PartDesign::Line", "DatumLine")
datumline.Placement = App.Placement(V(0, 0, 0), App.Rotation(V(0, 0, 1), V(0, 0.865977985, 0.500082122)))
linearpattern = body.newObject("PartDesign::LinearPattern", "LinearPattern")
linearpattern.Originals = [groove8]
linearpattern.Direction = (datumline, [""])
linearpattern.Mode = "offset"
linearpattern.setExpression("Offset", "Params.linearpattern_pitch")
linearpattern.Occurrences = 2
body.Tip = linearpattern
doc.recompute()

datumline2 = body.newObject("PartDesign::Line", "DatumLine001")
datumline2.Placement = App.Placement(V(0, 0, 0), App.Rotation(V(0, 0, 1), V(0, 0.865977985, -0.500082122)))
linearpattern2 = body.newObject("PartDesign::LinearPattern", "LinearPattern001")
linearpattern2.Originals = [groove8]
linearpattern2.Direction = (datumline2, [""])
linearpattern2.Mode = "offset"
linearpattern2.setExpression("Offset", "Params.linearpattern2_pitch")
linearpattern2.Occurrences = 2
body.Tip = linearpattern2
doc.recompute()

polarpattern = body.newObject("PartDesign::PolarPattern", "PolarPattern")
polarpattern.Originals = [groove5]
polarpattern.Axis = (doc.getObject("X_Axis"), [""])
polarpattern.Angle = 360
polarpattern.Occurrences = 6
body.Tip = polarpattern
body2 = doc.addObject("PartDesign::Body", "Body001")

sketch15 = body2.newObject("Sketcher::SketchObject", "Sketch014")
sketch15.AttachmentSupport = (doc.getObject("XY_Plane001"), [""])
sketch15.MapMode = "FlatFace"
sketch15.AttachmentOffset = App.Placement(V(0, 0, 10.49), App.Rotation())
sketch15.addGeometry(Part.Circle(V(-25.9, -13.4, 0), V(0, 0, 1), 0.9), False)
sketch15.addGeometry(Part.LineSegment(V(-25.9, -18.2, 0), V(-15.9, -18.2, 0)), True)
sketch15.addConstraint(Sketcher.Constraint("Horizontal", 1))
sketch15.addConstraint(Sketcher.Constraint("Vertical", 0, 3, 1, 1))
sketch15.addConstraint(Sketcher.Constraint("Diameter", 0, Q("0.07 in")))
sketch15.addConstraint(Sketcher.Constraint("DistanceX", 0, 3, -1, 1, Q("1.018 in")))
sketch15.addConstraint(Sketcher.Constraint("DistanceY", 1, 1, -1, 1, Q("0.716 in")))
sketch15.addConstraint(Sketcher.Constraint("DistanceX", 1, 1, 1, 2, 10.0))
sketch15.addConstraint(Sketcher.Constraint("DistanceY", 0, 3, -1, 1, Q("0.5265 in")))
sketch15.setExpression("Constraints[2]", "Params.sketch15_diameter")
revolution2 = body2.newObject("PartDesign::Revolution", "Revolution001")
revolution2.Profile = sketch15
revolution2.ReferenceAxis = (sketch15, ["Axis0"])
revolution2.setExpression("Angle", "Params.revolution2_angle")
body3 = doc.addObject("PartDesign::Body", "Body002")
doc.recompute()

mirroring = doc.addObject("Part::Mirroring", "Mirroring")
mirroring.Source = body2
mirroring.Base = V(0, 0, 0)
mirroring.Normal = V(0, 0, 1)
body3.BaseFeature = mirroring
doc.recompute()
mirroring.Visibility = False

doc.recompute()
